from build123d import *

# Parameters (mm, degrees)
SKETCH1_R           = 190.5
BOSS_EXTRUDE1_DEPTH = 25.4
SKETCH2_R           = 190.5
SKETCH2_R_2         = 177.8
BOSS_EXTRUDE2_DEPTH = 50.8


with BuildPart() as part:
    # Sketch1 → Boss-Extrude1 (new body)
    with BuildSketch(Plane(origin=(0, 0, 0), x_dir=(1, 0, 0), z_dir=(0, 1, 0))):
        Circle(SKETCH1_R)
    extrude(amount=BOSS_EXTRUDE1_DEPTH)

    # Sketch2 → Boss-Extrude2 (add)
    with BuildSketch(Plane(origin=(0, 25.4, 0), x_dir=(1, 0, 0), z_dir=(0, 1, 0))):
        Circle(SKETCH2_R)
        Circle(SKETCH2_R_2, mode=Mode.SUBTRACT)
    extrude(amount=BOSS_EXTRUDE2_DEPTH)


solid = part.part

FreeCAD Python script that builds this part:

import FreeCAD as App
import Part
import Sketcher
Q = App.Units.Quantity

doc = App.newDocument("Part")
params = doc.addObject("Spreadsheet::Sheet", "Params")
for row, (alias, value) in enumerate([
    ("sketch1_diameter", "15 in"),
    ("pad1_length", "1 in"),
    ("sketch2_diameter", "15 in"),
    ("sketch2_diameter2", "14 in"),
    ("pad2_length", "2 in"),
], start=1):
    params.set(f"A{row}", alias)
    params.set(f"B{row}", "=" + value)
    params.setAlias(f"B{row}", alias)

body = doc.addObject("PartDesign::Body", "Body")

sketch1 = doc.addObject("Sketcher::SketchObject", "Sketch")
body.addObject(sketch1)
sketch1.AttachmentSupport = (doc.XZ_Plane, [""])
sketch1.MapMode = "FlatFace"
sketch1.addGeometry(Part.Circle(App.Vector(0, 0, 0), App.Vector(0, 0, 1), 190), False)
sketch1.addConstraint([
    Sketcher.Constraint("Coincident", 0, 3, -1, 1),
    Sketcher.Constraint("Diameter", 0, Q("15 in")),
])
sketch1.setExpression("Constraints[1]", "Params.sketch1_diameter")
pad1 = doc.addObject("PartDesign::Pad", "Pad")
body.addObject(pad1)
pad1.Profile = sketch1
pad1.setExpression("Length", "Params.pad1_length")
pad1.Reversed = True

sketch2 = doc.addObject("Sketcher::SketchObject", "Sketch001")
body.addObject(sketch2)
sketch2.AttachmentSupport = (doc.XZ_Plane, [""])
sketch2.MapMode = "FlatFace"
sketch2.AttachmentOffset = App.Placement(App.Vector(0, 0, -1 * 25.4), App.Rotation())
sketch2.addGeometry([
    Part.Circle(App.Vector(0, 0, 0), App.Vector(0, 0, 1), 190),
    Part.Circle(App.Vector(0, 0, 0), App.Vector(0, 0, 1), 178),
], False)
sketch2.addConstraint([
    Sketcher.Constraint("Coincident", 0, 3, -1, 1),
    Sketcher.Constraint("Coincident", 1, 3, -1, 1),
    Sketcher.Constraint("Diameter", 0, Q("15 in")),
    Sketcher.Constraint("Diameter", 1, Q("14 in")),
])
sketch2.setExpression("Constraints[2]", "Params.sketch2_diameter")
sketch2.setExpression("Constraints[3]", "Params.sketch2_diameter2")
pad2 = doc.addObject("PartDesign::Pad", "Pad001")
body.addObject(pad2)
pad2.Profile = sketch2
pad2.setExpression("Length", "Params.pad2_length")
pad2.Reversed = True

doc.recompute()
